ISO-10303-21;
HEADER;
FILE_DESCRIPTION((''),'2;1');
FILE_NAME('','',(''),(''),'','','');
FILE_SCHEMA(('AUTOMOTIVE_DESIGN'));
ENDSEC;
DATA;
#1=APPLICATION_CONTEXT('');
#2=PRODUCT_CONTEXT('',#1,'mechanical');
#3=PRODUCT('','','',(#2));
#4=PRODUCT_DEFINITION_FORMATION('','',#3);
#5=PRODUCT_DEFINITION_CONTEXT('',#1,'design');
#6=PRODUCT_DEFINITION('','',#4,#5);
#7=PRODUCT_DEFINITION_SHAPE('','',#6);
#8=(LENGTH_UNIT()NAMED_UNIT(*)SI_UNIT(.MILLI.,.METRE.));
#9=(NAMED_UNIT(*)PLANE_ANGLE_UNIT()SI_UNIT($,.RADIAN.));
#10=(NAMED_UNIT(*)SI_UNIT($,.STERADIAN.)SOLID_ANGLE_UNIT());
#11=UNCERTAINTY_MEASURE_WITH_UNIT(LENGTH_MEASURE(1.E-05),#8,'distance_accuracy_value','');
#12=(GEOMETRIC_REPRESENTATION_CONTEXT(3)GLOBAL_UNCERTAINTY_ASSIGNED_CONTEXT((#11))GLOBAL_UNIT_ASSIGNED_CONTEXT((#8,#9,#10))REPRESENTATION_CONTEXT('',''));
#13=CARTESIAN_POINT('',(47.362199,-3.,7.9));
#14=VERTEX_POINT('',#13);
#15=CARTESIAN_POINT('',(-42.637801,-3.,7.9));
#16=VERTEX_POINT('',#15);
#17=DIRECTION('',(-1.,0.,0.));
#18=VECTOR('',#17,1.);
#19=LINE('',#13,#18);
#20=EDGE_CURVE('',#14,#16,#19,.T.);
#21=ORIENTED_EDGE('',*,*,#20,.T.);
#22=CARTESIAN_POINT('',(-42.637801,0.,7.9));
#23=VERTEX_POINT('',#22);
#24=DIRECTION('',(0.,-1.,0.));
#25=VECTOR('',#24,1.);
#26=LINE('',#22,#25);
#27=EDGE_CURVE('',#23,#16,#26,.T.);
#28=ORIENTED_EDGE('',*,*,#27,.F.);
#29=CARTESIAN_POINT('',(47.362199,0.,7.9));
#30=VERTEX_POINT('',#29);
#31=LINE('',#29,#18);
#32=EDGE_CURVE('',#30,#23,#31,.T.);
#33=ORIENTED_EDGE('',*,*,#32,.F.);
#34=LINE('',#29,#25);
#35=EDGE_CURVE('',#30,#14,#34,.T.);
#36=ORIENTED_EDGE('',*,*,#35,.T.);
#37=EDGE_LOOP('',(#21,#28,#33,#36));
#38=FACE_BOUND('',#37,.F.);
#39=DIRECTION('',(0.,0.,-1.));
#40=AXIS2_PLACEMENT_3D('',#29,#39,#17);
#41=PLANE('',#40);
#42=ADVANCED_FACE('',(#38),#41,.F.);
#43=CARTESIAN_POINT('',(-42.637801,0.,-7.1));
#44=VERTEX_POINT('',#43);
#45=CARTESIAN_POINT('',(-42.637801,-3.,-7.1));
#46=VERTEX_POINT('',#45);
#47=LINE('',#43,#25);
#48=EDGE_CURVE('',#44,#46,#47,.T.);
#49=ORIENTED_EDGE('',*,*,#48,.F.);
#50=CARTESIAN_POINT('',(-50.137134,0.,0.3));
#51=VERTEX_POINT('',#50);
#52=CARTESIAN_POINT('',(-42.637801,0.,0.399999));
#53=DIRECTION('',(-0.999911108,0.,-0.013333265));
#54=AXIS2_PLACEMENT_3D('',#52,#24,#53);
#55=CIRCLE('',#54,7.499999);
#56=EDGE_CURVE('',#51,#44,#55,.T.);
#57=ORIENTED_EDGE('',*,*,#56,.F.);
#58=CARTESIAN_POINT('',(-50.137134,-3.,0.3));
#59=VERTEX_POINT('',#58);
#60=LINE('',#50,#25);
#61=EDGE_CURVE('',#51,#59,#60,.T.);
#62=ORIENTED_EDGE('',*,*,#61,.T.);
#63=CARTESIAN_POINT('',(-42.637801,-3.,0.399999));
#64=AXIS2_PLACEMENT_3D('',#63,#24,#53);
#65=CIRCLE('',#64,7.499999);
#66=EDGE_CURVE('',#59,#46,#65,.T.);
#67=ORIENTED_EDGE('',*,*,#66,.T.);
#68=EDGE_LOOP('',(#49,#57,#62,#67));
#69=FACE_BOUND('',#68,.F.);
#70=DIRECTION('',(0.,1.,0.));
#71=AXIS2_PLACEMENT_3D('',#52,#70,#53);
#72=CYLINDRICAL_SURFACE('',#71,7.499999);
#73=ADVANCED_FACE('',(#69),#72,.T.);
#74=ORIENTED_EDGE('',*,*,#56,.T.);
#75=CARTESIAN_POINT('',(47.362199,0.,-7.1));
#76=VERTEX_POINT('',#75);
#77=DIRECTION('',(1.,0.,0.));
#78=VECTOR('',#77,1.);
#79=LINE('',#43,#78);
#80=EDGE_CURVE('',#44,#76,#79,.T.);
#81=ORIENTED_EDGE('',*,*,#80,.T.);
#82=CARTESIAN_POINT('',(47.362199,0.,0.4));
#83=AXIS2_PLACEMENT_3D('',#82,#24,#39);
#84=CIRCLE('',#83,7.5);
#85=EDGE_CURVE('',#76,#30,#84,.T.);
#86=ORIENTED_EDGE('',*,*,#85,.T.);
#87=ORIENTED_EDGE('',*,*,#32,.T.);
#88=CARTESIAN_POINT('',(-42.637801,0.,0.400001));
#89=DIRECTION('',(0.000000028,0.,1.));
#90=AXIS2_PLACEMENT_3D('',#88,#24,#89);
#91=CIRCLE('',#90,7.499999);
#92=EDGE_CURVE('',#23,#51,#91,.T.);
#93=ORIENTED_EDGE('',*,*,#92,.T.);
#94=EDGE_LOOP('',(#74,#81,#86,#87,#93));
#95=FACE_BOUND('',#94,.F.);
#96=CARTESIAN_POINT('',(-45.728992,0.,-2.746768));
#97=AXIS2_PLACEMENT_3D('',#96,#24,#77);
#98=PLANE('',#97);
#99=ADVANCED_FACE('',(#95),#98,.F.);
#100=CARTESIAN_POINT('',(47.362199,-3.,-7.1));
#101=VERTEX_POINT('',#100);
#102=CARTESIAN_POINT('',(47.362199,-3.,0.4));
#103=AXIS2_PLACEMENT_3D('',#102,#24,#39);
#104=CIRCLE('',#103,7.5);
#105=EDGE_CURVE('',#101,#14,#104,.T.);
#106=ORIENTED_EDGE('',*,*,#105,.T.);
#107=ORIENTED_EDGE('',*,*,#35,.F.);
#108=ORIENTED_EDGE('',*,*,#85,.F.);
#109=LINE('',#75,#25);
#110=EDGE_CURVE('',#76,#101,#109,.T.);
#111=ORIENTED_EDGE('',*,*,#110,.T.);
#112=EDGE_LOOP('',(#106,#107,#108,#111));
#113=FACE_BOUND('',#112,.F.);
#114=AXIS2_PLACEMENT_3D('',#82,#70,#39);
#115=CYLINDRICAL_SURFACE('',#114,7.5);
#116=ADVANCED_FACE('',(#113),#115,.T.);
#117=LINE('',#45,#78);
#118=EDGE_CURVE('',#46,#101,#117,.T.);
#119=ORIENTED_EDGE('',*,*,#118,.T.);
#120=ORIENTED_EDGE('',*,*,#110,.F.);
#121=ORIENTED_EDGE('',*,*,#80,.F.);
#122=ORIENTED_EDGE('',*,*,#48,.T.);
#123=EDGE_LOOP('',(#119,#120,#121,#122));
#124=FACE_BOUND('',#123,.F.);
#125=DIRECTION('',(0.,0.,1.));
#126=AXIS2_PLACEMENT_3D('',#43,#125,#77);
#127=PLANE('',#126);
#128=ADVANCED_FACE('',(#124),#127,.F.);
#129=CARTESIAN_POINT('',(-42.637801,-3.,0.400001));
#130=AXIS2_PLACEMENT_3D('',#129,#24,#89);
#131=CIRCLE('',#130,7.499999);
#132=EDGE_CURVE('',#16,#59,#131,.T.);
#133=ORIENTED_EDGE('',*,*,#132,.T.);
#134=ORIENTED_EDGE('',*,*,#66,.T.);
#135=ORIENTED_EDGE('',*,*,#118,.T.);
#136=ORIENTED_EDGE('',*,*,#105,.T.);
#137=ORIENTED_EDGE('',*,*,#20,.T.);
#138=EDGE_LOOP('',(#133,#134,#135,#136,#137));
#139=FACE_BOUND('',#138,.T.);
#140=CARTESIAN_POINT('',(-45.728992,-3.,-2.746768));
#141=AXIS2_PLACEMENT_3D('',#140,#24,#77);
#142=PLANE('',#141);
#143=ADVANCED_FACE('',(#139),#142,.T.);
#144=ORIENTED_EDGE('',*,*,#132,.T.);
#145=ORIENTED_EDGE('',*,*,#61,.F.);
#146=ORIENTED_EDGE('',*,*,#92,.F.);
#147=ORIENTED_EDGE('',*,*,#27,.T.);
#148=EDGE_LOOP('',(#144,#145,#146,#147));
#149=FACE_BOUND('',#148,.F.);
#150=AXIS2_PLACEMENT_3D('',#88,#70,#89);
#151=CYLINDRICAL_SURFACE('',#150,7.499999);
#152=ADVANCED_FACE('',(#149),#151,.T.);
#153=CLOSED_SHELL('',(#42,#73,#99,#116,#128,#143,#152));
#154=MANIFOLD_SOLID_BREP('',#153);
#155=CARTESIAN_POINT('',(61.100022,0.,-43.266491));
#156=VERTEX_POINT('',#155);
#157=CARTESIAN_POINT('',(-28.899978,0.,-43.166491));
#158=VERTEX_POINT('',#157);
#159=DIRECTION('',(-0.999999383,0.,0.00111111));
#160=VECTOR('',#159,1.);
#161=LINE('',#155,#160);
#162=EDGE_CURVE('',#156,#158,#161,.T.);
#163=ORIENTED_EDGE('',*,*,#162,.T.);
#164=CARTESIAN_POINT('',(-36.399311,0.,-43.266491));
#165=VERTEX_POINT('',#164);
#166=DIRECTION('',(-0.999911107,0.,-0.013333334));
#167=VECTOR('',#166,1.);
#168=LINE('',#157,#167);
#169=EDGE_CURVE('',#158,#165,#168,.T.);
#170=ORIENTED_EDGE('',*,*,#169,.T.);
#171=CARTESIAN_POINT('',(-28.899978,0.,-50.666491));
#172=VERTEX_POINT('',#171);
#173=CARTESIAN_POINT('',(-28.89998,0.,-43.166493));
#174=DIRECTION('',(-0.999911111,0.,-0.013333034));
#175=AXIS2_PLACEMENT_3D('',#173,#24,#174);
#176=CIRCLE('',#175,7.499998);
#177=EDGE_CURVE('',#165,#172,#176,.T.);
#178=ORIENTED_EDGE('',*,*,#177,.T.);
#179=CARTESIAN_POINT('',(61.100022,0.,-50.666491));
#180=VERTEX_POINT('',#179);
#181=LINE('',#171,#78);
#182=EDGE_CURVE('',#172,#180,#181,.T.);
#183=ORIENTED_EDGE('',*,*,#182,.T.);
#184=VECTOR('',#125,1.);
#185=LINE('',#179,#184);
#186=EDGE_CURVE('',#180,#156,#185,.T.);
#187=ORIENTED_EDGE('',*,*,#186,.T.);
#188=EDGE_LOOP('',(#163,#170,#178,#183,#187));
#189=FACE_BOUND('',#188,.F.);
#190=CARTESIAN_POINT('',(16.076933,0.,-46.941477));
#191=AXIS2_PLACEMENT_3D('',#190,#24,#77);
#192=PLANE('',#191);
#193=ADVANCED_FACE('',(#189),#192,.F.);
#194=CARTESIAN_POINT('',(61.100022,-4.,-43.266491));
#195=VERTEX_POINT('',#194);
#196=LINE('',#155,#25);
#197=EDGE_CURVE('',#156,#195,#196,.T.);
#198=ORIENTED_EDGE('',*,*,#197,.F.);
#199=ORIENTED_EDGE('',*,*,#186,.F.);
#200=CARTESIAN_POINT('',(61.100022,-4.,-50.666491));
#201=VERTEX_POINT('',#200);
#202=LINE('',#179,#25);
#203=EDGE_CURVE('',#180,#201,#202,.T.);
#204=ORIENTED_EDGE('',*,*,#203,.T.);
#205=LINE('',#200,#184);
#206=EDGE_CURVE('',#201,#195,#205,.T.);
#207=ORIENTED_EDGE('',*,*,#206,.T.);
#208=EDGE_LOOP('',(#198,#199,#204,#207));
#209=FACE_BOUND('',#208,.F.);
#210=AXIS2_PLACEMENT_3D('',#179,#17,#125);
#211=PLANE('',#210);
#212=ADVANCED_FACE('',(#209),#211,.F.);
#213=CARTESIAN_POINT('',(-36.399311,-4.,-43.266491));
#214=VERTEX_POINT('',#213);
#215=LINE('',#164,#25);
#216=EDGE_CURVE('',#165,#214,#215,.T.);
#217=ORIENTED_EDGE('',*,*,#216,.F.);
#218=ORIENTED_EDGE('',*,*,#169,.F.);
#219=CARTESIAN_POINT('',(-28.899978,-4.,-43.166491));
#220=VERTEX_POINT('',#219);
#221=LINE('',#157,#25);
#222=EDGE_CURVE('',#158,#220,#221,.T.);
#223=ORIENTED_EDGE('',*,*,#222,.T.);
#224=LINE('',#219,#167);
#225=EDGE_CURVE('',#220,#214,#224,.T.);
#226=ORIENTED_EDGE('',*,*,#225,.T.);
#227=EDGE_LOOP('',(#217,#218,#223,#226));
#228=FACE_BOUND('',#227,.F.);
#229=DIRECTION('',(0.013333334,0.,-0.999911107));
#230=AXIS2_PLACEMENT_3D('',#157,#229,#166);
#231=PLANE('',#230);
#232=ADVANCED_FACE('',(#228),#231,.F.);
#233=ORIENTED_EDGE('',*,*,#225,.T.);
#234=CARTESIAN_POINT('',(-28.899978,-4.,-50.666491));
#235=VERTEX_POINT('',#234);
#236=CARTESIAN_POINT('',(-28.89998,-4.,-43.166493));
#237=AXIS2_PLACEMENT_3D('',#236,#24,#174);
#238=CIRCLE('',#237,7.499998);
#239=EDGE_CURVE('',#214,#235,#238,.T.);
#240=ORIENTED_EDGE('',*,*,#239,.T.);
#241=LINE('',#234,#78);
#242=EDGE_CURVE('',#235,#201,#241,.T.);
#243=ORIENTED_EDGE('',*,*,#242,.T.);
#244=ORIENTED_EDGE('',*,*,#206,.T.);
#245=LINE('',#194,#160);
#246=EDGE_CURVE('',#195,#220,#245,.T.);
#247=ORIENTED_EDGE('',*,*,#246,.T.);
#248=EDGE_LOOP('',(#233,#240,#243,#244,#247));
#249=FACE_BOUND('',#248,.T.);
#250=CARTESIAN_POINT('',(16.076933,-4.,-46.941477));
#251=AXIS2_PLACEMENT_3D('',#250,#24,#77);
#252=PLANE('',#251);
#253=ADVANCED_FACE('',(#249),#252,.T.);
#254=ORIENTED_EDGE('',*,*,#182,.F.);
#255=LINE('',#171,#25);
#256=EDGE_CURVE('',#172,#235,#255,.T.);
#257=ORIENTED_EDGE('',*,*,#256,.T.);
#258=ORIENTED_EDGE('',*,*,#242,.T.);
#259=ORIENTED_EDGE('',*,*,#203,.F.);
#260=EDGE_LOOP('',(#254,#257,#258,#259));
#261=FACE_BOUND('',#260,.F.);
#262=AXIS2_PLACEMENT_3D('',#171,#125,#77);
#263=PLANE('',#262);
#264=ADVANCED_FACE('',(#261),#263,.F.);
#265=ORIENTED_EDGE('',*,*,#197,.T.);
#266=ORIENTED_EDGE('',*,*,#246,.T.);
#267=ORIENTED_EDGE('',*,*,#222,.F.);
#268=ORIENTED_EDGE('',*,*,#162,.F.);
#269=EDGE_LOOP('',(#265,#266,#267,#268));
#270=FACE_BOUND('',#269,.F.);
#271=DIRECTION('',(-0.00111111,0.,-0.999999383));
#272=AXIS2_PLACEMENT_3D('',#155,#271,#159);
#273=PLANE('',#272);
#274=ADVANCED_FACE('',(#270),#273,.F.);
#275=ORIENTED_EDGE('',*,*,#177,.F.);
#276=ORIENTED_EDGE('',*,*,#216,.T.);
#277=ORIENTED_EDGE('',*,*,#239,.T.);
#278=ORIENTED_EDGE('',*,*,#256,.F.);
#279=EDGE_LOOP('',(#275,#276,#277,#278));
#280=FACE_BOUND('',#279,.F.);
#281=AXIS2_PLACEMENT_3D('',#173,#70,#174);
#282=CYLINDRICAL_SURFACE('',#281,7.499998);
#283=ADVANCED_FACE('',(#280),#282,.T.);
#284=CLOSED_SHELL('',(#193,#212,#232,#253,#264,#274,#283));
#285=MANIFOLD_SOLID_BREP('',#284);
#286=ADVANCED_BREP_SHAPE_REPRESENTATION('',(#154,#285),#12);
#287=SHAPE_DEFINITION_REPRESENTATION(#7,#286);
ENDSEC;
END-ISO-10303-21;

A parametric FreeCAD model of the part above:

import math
import FreeCAD as App
import Part
import Sketcher

V = App.Vector

doc = App.newDocument("Part")
body = doc.addObject("PartDesign::Body", "Body")

sketch1 = body.newObject("Sketcher::SketchObject", "Sketch")
sketch1.AttachmentSupport = (doc.getObject("XZ_Plane"), [""])
sketch1.MapMode = "FlatFace"
sketch1.addGeometry(Part.LineSegment(V(-28.899978, -50.666491, 0), V(61.100022, -50.666491, 0)), False)
sketch1.addGeometry(Part.LineSegment(V(61.100022, -50.666491, 0), V(61.100022, -43.266491, 0)), False)
sketch1.addGeometry(Part.LineSegment(V(61.100022, -43.266491, 0), V(-28.899978, -43.166491, 0)), False)
sketch1.addGeometry(Part.LineSegment(V(-28.899978, -43.166491, 0), V(-36.399311, -43.266491, 0)), False)
sketch1.addGeometry(Part.ArcOfCircle(Part.Circle(V(-28.89998, -43.166493, 0), V(0, 0, 1), 7.499998), math.radians(-179.236051), math.radians(-89.999985)), False)
sketch1.addConstraint(Sketcher.Constraint("Coincident", 0, 2, 1, 1))
sketch1.addConstraint(Sketcher.Constraint("Coincident", 1, 2, 2, 1))
sketch1.addConstraint(Sketcher.Constraint("Coincident", 2, 2, 3, 1))
sketch1.addConstraint(Sketcher.Constraint("Coincident", 3, 2, 4, 1))
sketch1.addConstraint(Sketcher.Constraint("Tangent", 4, 2, 0, 1))
sketch1.addConstraint(Sketcher.Constraint("Horizontal", 0))
sketch1.addConstraint(Sketcher.Constraint("Vertical", 1))
sketch1.addConstraint(Sketcher.Constraint("Coincident", 2, 2, 4, 3))
sketch1.addConstraint(Sketcher.Constraint("Horizontal", 1, 2, 3, 2))
sketch1.addConstraint(Sketcher.Constraint("DistanceX", 0, 1, 0, 2, 90.0))
sketch1.addConstraint(Sketcher.Constraint("DistanceY", 1, 1, 1, 2, 7.4))
sketch1.addConstraint(Sketcher.Constraint("Distance", 3, 7.5))
sketch1.addConstraint(Sketcher.Constraint("DistanceX", 4, 3, -1, 1, 28.89998))
sketch1.addConstraint(Sketcher.Constraint("DistanceY", 0, 2, -1, 1, 50.666491))
pad1 = body.newObject("PartDesign::Pad", "Pad")
pad1.Profile = sketch1
pad1.Length = 4
body2 = doc.addObject("PartDesign::Body", "Body001")

sketch2 = body2.newObject("Sketcher::SketchObject", "Sketch001")
sketch2.AttachmentSupport = (doc.getObject("XZ_Plane001"), [""])
sketch2.MapMode = "FlatFace"
sketch2.addGeometry(Part.ArcOfCircle(Part.Circle(V(-42.637801, 0.399999, 0), V(0, 0, 1), 7.499999), math.radians(-179.236038), math.radians(-89.999998)), False)
sketch2.addGeometry(Part.LineSegment(V(-42.637801, -7.1, 0), V(47.362199, -7.1, 0)), False)
sketch2.addGeometry(Part.ArcOfCircle(Part.Circle(V(47.362199, 0.4, 0), V(0, 0, 1), 7.5), math.radians(-90), math.radians(90)), False)
sketch2.addGeometry(Part.LineSegment(V(47.362199, 7.9, 0), V(-42.637801, 7.9, 0)), False)
sketch2.addGeometry(Part.ArcOfCircle(Part.Circle(V(-42.637801, 0.400001, 0), V(0, 0, 1), 7.499999), math.radians(89.999998), math.radians(180.76397)), False)
sketch2.addConstraint(Sketcher.Constraint("Tangent", 0, 2, 1, 1))
sketch2.addConstraint(Sketcher.Constraint("Tangent", 1, 2, 2, 1))
sketch2.addConstraint(Sketcher.Constraint("Tangent", 2, 2, 3, 1))
sketch2.addConstraint(Sketcher.Constraint("Tangent", 3, 2, 4, 1))
sketch2.addConstraint(Sketcher.Constraint("Tangent", 4, 2, 0, 1))
sketch2.addConstraint(Sketcher.Constraint("Horizontal", 1))
sketch2.addConstraint(Sketcher.Constraint("Horizontal", 3))
sketch2.addConstraint(Sketcher.Constraint("Equal", 0, 2))
sketch2.addConstraint(Sketcher.Constraint("Radius", 0, 7.499999))
sketch2.addConstraint(Sketcher.Constraint("DistanceX", 1, 1, 1, 2, 90.0))
sketch2.addConstraint(Sketcher.Constraint("DistanceY", -1, 1, 0, 3, 0.399999))
sketch2.addConstraint(Sketcher.Constraint("DistanceY", -1, 1, 4, 2, 0.3))
sketch2.addConstraint(Sketcher.Constraint("DistanceX", 0, 3, -1, 1, 42.637801))
pad2 = body2.newObject("PartDesign::Pad", "Pad001")
pad2.Profile = sketch2
pad2.Length = 3

doc.recompute()
